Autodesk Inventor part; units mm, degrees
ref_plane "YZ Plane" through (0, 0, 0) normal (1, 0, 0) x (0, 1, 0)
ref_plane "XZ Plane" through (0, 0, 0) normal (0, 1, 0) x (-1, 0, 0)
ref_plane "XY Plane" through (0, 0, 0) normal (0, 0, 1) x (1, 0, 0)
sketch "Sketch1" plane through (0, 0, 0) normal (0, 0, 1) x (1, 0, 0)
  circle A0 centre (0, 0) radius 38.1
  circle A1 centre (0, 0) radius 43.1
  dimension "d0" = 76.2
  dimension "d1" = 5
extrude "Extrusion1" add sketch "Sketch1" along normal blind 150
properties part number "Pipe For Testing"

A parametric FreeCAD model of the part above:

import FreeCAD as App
import Part
import Sketcher
from FreeCAD import Vector
Q = App.Units.Quantity

doc = App.newDocument("Part")
body = doc.addObject("PartDesign::Body", "Body")

sketch1 = doc.addObject("Sketcher::SketchObject", "Sketch")
body.addObject(sketch1)
sketch1.AttachmentSupport = (doc.XY_Plane, [""])
sketch1.MapMode = "FlatFace"
sketch1.addGeometry(Part.Circle(Vector(0, 0, 0), Vector(0, 0, 1), 43.1), False)
sketch1.addGeometry(Part.Circle(Vector(0, 0, 0), Vector(0, 0, 1), 38.1), False)
sketch1.addConstraint(Sketcher.Constraint("Coincident", 0, 3, -1, 1))
sketch1.addConstraint(Sketcher.Constraint("Coincident", 1, 3, -1, 1))
sketch1.addConstraint(Sketcher.Constraint("Diameter", 1, Q("3 in")))
sketch1.addConstraint(Sketcher.Constraint("Diameter", 0, Q("3.3937 in")))
pad1 = doc.addObject("PartDesign::Pad", "Pad")
body.addObject(pad1)
pad1.Profile = sketch1
pad1.Length = Q("5.9055118 in")

doc.recompute()
